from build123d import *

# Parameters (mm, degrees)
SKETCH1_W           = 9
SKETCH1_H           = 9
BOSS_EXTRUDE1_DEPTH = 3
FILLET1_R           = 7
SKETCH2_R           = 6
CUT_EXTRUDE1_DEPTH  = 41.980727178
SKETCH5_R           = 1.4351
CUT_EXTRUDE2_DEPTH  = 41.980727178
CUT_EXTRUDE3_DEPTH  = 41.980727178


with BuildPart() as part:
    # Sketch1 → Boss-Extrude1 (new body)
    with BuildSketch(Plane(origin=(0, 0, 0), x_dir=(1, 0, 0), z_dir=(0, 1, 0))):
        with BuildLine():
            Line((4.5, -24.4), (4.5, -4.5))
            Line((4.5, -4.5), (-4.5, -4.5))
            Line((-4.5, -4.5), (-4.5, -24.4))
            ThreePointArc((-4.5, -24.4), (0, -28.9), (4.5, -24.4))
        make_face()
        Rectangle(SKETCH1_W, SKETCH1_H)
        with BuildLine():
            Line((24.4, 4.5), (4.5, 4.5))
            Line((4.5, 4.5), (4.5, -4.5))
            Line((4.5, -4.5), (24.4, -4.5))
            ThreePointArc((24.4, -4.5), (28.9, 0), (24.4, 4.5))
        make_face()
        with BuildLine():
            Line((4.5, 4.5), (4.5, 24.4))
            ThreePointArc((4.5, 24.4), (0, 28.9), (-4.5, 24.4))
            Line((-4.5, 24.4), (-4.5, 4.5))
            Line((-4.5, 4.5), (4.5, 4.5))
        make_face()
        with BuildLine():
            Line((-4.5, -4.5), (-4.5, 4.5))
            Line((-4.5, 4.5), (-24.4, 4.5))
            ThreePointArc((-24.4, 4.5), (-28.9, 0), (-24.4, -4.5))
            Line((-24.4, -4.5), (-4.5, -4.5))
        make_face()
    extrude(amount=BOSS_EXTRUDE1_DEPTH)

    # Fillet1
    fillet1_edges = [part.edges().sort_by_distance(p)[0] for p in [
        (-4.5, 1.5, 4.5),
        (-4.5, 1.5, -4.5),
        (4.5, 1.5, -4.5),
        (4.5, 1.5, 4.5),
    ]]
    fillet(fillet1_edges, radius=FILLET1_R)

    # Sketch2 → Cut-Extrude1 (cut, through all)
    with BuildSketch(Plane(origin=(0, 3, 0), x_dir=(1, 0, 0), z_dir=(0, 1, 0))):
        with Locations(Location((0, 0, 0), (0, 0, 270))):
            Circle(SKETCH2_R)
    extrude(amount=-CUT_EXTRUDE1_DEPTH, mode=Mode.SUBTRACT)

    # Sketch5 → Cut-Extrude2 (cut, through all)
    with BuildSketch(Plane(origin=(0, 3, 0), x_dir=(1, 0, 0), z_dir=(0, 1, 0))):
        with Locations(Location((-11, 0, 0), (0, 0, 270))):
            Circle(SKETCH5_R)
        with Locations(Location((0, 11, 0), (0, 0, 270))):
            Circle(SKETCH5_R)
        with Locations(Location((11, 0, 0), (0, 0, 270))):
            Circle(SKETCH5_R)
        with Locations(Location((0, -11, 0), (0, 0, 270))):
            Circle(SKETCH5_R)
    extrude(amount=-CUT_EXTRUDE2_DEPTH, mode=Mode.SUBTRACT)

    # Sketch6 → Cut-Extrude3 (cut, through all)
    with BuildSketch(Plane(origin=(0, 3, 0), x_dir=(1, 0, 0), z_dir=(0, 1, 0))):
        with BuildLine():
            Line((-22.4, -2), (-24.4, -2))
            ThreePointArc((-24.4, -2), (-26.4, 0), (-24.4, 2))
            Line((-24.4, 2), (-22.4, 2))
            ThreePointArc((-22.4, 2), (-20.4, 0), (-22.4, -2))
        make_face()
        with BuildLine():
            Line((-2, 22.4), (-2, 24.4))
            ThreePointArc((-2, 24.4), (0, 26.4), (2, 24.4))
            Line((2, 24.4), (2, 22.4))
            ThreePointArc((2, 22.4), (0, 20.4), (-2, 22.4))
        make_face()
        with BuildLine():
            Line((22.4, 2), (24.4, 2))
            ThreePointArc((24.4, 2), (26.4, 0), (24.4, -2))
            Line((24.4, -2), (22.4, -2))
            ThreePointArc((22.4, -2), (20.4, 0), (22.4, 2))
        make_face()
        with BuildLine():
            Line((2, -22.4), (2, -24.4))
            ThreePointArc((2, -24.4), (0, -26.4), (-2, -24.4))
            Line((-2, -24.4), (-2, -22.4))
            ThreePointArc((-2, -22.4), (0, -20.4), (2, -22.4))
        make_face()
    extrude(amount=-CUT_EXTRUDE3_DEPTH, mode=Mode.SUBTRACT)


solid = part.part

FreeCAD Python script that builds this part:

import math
import FreeCAD as App
import Part
import Sketcher

V = App.Vector


def edges_at(feature, points):
    """Names of the edges that pass closest to the given points."""
    edges = feature.Shape.Edges
    near = lambda p: min(range(len(edges)), key=lambda i: edges[i].distToShape(Part.Vertex(*p))[0])
    return sorted({f"Edge{near(p) + 1}" for p in points})

doc = App.newDocument("Part")
params = doc.addObject("Spreadsheet::Sheet", "Params")
for row, (alias, value) in enumerate([
    ("sketch1_radius", "4.5 mm"),
    ("sketch1_width", "19.9 mm"),
    ("pad1_length", "3 mm"),
    ("fillet_radius", "7 mm"),
    ("sketch2_diameter", "12 mm"),
    ("sketch4_radius", "2 mm"),
    ("sketch4_width", "2 mm"),
], start=1):
    params.set(f"A{row}", alias)
    params.set(f"B{row}", "=" + value)
    params.setAlias(f"B{row}", alias)

body = doc.addObject("PartDesign::Body", "Body")

# Sketch on XZ plane
sketch1 = body.newObject("Sketcher::SketchObject", "Sketch")
sketch1.AttachmentSupport = (doc.getObject("XZ_Plane"), [""])
sketch1.MapMode = "FlatFace"
sketch1.addGeometry([
    Part.LineSegment(V(4.5, 24.4, 0), V(4.5, 4.5, 0)),  # 0
    Part.LineSegment(V(4.5, 4.5, 0), V(24.4, 4.5, 0)),  # 1
    Part.ArcOfCircle(Part.Circle(V(24.4, 0, 0), V(0, 0, 1), 4.5), math.radians(-90), math.radians(90)),  # 2
    Part.LineSegment(V(24.4, -4.5, 0), V(4.5, -4.5, 0)),  # 3
    Part.LineSegment(V(4.5, -4.5, 0), V(4.5, -24.4, 0)),  # 4
    Part.ArcOfCircle(Part.Circle(V(0, -24.4, 0), V(0, 0, 1), 4.5), math.radians(180), math.radians(360)),  # 5
    Part.LineSegment(V(-4.5, -24.4, 0), V(-4.5, -4.5, 0)),  # 6
    Part.LineSegment(V(-4.5, -4.5, 0), V(-24.4, -4.5, 0)),  # 7
    Part.ArcOfCircle(Part.Circle(V(-24.4, 0, 0), V(0, 0, 1), 4.5), math.radians(90), math.radians(270)),  # 8
    Part.LineSegment(V(-24.4, 4.5, 0), V(-4.5, 4.5, 0)),  # 9
    Part.LineSegment(V(-4.5, 4.5, 0), V(-4.5, 24.4, 0)),  # 10
    Part.ArcOfCircle(Part.Circle(V(0, 24.4, 0), V(0, 0, 1), 4.5), math.radians(0), math.radians(180)),  # 11
], False)
sketch1.addConstraint([
    Sketcher.Constraint("Coincident", 0, 2, 1, 1),
    Sketcher.Constraint("Tangent", 1, 2, 2, 2),
    Sketcher.Constraint("Tangent", 2, 1, 3, 1),
    Sketcher.Constraint("Coincident", 3, 2, 4, 1),
    Sketcher.Constraint("Tangent", 4, 2, 5, 2),
    Sketcher.Constraint("Tangent", 5, 1, 6, 1),
    Sketcher.Constraint("Coincident", 6, 2, 7, 1),
    Sketcher.Constraint("Tangent", 7, 2, 8, 2),
    Sketcher.Constraint("Tangent", 8, 1, 9, 1),
    Sketcher.Constraint("Coincident", 9, 2, 10, 1),
    Sketcher.Constraint("Tangent", 10, 2, 11, 2),
    Sketcher.Constraint("Tangent", 11, 1, 0, 1),
    Sketcher.Constraint("Vertical", 0),
    Sketcher.Constraint("Horizontal", 1),
    Sketcher.Constraint("Horizontal", 3),
    Sketcher.Constraint("Vertical", 4),
    Sketcher.Constraint("Vertical", 6),
    Sketcher.Constraint("Horizontal", 7),
    Sketcher.Constraint("Horizontal", 9),
    Sketcher.Constraint("Vertical", 10),
    Sketcher.Constraint("Equal", 2, 5),
    Sketcher.Constraint("Equal", 5, 8),
    Sketcher.Constraint("Equal", 8, 11),
    Sketcher.Constraint("Symmetric", 2, 3, 8, 3, -1, 1),
    Sketcher.Constraint("Symmetric", 5, 3, 11, 3, -1, 1),
    Sketcher.Constraint("Symmetric", 3, 2, 6, 2, -2),
    Sketcher.Constraint("Equal", 9, 0),
    Sketcher.Constraint("Radius", 2, 4.5),
    Sketcher.Constraint("DistanceX", 1, 1, 1, 2, 19.9),
])
sketch1.setExpression("Constraints[27]", "Params.sketch1_radius")
sketch1.setExpression("Constraints[28]", "Params.sketch1_width")
pad1 = body.newObject("PartDesign::Pad", "Pad")
pad1.Profile = sketch1
pad1.setExpression("Length", "Params.pad1_length")
pad1.Reversed = True
doc.recompute()

fillet = body.newObject("PartDesign::Fillet", "Fillet")
fillet.Base = (pad1, edges_at(pad1, [
    (-4.5, 1.5, 4.5),
    (-4.5, 1.5, -4.5),
    (4.5, 1.5, -4.5),
    (4.5, 1.5, 4.5),
]))
fillet.setExpression("Radius", "Params.fillet_radius")

# Sketch on XZ plane
sketch2 = body.newObject("Sketcher::SketchObject", "Sketch001")
sketch2.AttachmentSupport = (doc.getObject("XZ_Plane"), [""])
sketch2.MapMode = "FlatFace"
sketch2.AttachmentOffset = App.Placement(V(0, 0, -3), App.Rotation())
sketch2.addGeometry(Part.Circle(V(0, 0, 0), V(0, 0, 1), 6), False)
sketch2.addConstraint([
    Sketcher.Constraint("Coincident", 0, 3, -1, 1),
    Sketcher.Constraint("Diameter", 0, 12.0),
])
sketch2.setExpression("Constraints[1]", "Params.sketch2_diameter")
pocket1 = body.newObject("PartDesign::Pocket", "Pocket")
pocket1.Profile = sketch2
pocket1.Type = "ThroughAll"
pocket1.Reversed = True

# Sketch on XZ plane
sketch3 = body.newObject("Sketcher::SketchObject", "Sketch002")
sketch3.AttachmentSupport = (doc.getObject("XZ_Plane"), [""])
sketch3.MapMode = "FlatFace"
sketch3.AttachmentOffset = App.Placement(V(0, 0, -3), App.Rotation())
sketch3.addGeometry([
    Part.Circle(V(-11, 0, 0), V(0, 0, 1), 1.4),
    Part.Circle(V(0, -11, 0), V(0, 0, 1), 1.4),
    Part.Circle(V(11, 0, 0), V(0, 0, 1), 1.4),
    Part.Circle(V(0, 11, 0), V(0, 0, 1), 1.4),
], False)
sketch3.addConstraint([
    Sketcher.Constraint("Equal", 0, 1),
    Sketcher.Constraint("Equal", 1, 2),
    Sketcher.Constraint("Equal", 2, 3),
    Sketcher.Constraint("Symmetric", 0, 3, 2, 3, -1, 1),
    Sketcher.Constraint("Symmetric", 1, 3, 3, 3, -1, 1),
    Sketcher.Constraint("PointOnObject", 0, 3, -1),
    Sketcher.Constraint("PointOnObject", 1, 3, -2),
    Sketcher.Constraint("DistanceX", 0, 3, -1, 1, 11.0),
    Sketcher.Constraint("DistanceY", 1, 3, -1, 1, 11.0),
    Sketcher.Constraint("Diameter", 0, 2.8702),
])
pocket2 = body.newObject("PartDesign::Pocket", "Pocket001")
pocket2.Profile = sketch3
pocket2.Type = "ThroughAll"
pocket2.Reversed = True

# Sketch on XZ plane
sketch4 = body.newObject("Sketcher::SketchObject", "Sketch003")
sketch4.AttachmentSupport = (doc.getObject("XZ_Plane"), [""])
sketch4.MapMode = "FlatFace"
sketch4.AttachmentOffset = App.Placement(V(0, 0, -3), App.Rotation())
sketch4.addGeometry([
    Part.LineSegment(V(-24.4, 2, 0), V(-22.4, 2, 0)),  # 0
    Part.ArcOfCircle(Part.Circle(V(-22.4, 0, 0), V(0, 0, 1), 2), math.radians(-90), math.radians(90)),  # 1
    Part.LineSegment(V(-22.4, -2, 0), V(-24.4, -2, 0)),  # 2
    Part.ArcOfCircle(Part.Circle(V(-24.4, 0, 0), V(0, 0, 1), 2), math.radians(90), math.radians(270)),  # 3
    Part.LineSegment(V(-2, -24.4, 0), V(-2, -22.4, 0)),  # 4
    Part.ArcOfCircle(Part.Circle(V(0, -22.4, 0), V(0, 0, 1), 2), math.radians(0), math.radians(180)),  # 5
    Part.LineSegment(V(2, -22.4, 0), V(2, -24.4, 0)),  # 6
    Part.ArcOfCircle(Part.Circle(V(0, -24.4, 0), V(0, 0, 1), 2), math.radians(180), math.radians(360)),  # 7
    Part.LineSegment(V(24.4, -2, 0), V(22.4, -2, 0)),  # 8
    Part.ArcOfCircle(Part.Circle(V(22.4, 0, 0), V(0, 0, 1), 2), math.radians(90), math.radians(270)),  # 9
    Part.LineSegment(V(22.4, 2, 0), V(24.4, 2, 0)),  # 10
    Part.ArcOfCircle(Part.Circle(V(24.4, 0, 0), V(0, 0, 1), 2), math.radians(-90), math.radians(90)),  # 11
    Part.LineSegment(V(2, 24.4, 0), V(2, 22.4, 0)),  # 12
    Part.ArcOfCircle(Part.Circle(V(0, 22.4, 0), V(0, 0, 1), 2), math.radians(180), math.radians(360)),  # 13
    Part.LineSegment(V(-2, 22.4, 0), V(-2, 24.4, 0)),  # 14
    Part.ArcOfCircle(Part.Circle(V(0, 24.4, 0), V(0, 0, 1), 2), math.radians(0), math.radians(180)),  # 15
], False)
sketch4.addConstraint([
    Sketcher.Constraint("Tangent", 0, 2, 1, 2),
    Sketcher.Constraint("Tangent", 1, 1, 2, 1),
    Sketcher.Constraint("Tangent", 2, 2, 3, 2),
    Sketcher.Constraint("Tangent", 3, 1, 0, 1),
    Sketcher.Constraint("Tangent", 4, 2, 5, 2),
    Sketcher.Constraint("Tangent", 5, 1, 6, 1),
    Sketcher.Constraint("Tangent", 6, 2, 7, 2),
    Sketcher.Constraint("Tangent", 7, 1, 4, 1),
    Sketcher.Constraint("Tangent", 8, 2, 9, 2),
    Sketcher.Constraint("Tangent", 9, 1, 10, 1),
    Sketcher.Constraint("Tangent", 10, 2, 11, 2),
    Sketcher.Constraint("Tangent", 11, 1, 8, 1),
    Sketcher.Constraint("Tangent", 12, 2, 13, 2),
    Sketcher.Constraint("Tangent", 13, 1, 14, 1),
    Sketcher.Constraint("Tangent", 14, 2, 15, 2),
    Sketcher.Constraint("Tangent", 15, 1, 12, 1),
    Sketcher.Constraint("Horizontal", 0),
    Sketcher.Constraint("Horizontal", 2),
    Sketcher.Constraint("Vertical", 4),
    Sketcher.Constraint("Vertical", 6),
    Sketcher.Constraint("Horizontal", 8),
    Sketcher.Constraint("Horizontal", 10),
    Sketcher.Constraint("Vertical", 12),
    Sketcher.Constraint("Vertical", 14),
    Sketcher.Constraint("Equal", 3, 5),
    Sketcher.Constraint("Equal", 7, 9),
    Sketcher.Constraint("Equal", 11, 13),
    Sketcher.Constraint("Symmetric", 1, 3, 9, 3, -1, 1),
    Sketcher.Constraint("Symmetric", 5, 3, 13, 3, -1, 1),
    Sketcher.Constraint("Symmetric", 3, 3, 11, 3, -2),
    Sketcher.Constraint("Symmetric", 7, 3, 15, 3, -1),
    Sketcher.Constraint("Equal", 10, 4),
    Sketcher.Constraint("Radius", 1, 2.0),
    Sketcher.Constraint("DistanceX", 0, 1, 0, 2, 2.0),
    Sketcher.Constraint("DistanceX", 1, 3, -1, 1, 22.4),
    Sketcher.Constraint("DistanceY", 5, 3, -1, 1, 22.4),
])
sketch4.setExpression("Constraints[32]", "Params.sketch4_radius")
sketch4.setExpression("Constraints[33]", "Params.sketch4_width")
pocket3 = body.newObject("PartDesign::Pocket", "Pocket002")
pocket3.Profile = sketch4
pocket3.Type = "ThroughAll"
pocket3.Reversed = True

doc.recompute()
